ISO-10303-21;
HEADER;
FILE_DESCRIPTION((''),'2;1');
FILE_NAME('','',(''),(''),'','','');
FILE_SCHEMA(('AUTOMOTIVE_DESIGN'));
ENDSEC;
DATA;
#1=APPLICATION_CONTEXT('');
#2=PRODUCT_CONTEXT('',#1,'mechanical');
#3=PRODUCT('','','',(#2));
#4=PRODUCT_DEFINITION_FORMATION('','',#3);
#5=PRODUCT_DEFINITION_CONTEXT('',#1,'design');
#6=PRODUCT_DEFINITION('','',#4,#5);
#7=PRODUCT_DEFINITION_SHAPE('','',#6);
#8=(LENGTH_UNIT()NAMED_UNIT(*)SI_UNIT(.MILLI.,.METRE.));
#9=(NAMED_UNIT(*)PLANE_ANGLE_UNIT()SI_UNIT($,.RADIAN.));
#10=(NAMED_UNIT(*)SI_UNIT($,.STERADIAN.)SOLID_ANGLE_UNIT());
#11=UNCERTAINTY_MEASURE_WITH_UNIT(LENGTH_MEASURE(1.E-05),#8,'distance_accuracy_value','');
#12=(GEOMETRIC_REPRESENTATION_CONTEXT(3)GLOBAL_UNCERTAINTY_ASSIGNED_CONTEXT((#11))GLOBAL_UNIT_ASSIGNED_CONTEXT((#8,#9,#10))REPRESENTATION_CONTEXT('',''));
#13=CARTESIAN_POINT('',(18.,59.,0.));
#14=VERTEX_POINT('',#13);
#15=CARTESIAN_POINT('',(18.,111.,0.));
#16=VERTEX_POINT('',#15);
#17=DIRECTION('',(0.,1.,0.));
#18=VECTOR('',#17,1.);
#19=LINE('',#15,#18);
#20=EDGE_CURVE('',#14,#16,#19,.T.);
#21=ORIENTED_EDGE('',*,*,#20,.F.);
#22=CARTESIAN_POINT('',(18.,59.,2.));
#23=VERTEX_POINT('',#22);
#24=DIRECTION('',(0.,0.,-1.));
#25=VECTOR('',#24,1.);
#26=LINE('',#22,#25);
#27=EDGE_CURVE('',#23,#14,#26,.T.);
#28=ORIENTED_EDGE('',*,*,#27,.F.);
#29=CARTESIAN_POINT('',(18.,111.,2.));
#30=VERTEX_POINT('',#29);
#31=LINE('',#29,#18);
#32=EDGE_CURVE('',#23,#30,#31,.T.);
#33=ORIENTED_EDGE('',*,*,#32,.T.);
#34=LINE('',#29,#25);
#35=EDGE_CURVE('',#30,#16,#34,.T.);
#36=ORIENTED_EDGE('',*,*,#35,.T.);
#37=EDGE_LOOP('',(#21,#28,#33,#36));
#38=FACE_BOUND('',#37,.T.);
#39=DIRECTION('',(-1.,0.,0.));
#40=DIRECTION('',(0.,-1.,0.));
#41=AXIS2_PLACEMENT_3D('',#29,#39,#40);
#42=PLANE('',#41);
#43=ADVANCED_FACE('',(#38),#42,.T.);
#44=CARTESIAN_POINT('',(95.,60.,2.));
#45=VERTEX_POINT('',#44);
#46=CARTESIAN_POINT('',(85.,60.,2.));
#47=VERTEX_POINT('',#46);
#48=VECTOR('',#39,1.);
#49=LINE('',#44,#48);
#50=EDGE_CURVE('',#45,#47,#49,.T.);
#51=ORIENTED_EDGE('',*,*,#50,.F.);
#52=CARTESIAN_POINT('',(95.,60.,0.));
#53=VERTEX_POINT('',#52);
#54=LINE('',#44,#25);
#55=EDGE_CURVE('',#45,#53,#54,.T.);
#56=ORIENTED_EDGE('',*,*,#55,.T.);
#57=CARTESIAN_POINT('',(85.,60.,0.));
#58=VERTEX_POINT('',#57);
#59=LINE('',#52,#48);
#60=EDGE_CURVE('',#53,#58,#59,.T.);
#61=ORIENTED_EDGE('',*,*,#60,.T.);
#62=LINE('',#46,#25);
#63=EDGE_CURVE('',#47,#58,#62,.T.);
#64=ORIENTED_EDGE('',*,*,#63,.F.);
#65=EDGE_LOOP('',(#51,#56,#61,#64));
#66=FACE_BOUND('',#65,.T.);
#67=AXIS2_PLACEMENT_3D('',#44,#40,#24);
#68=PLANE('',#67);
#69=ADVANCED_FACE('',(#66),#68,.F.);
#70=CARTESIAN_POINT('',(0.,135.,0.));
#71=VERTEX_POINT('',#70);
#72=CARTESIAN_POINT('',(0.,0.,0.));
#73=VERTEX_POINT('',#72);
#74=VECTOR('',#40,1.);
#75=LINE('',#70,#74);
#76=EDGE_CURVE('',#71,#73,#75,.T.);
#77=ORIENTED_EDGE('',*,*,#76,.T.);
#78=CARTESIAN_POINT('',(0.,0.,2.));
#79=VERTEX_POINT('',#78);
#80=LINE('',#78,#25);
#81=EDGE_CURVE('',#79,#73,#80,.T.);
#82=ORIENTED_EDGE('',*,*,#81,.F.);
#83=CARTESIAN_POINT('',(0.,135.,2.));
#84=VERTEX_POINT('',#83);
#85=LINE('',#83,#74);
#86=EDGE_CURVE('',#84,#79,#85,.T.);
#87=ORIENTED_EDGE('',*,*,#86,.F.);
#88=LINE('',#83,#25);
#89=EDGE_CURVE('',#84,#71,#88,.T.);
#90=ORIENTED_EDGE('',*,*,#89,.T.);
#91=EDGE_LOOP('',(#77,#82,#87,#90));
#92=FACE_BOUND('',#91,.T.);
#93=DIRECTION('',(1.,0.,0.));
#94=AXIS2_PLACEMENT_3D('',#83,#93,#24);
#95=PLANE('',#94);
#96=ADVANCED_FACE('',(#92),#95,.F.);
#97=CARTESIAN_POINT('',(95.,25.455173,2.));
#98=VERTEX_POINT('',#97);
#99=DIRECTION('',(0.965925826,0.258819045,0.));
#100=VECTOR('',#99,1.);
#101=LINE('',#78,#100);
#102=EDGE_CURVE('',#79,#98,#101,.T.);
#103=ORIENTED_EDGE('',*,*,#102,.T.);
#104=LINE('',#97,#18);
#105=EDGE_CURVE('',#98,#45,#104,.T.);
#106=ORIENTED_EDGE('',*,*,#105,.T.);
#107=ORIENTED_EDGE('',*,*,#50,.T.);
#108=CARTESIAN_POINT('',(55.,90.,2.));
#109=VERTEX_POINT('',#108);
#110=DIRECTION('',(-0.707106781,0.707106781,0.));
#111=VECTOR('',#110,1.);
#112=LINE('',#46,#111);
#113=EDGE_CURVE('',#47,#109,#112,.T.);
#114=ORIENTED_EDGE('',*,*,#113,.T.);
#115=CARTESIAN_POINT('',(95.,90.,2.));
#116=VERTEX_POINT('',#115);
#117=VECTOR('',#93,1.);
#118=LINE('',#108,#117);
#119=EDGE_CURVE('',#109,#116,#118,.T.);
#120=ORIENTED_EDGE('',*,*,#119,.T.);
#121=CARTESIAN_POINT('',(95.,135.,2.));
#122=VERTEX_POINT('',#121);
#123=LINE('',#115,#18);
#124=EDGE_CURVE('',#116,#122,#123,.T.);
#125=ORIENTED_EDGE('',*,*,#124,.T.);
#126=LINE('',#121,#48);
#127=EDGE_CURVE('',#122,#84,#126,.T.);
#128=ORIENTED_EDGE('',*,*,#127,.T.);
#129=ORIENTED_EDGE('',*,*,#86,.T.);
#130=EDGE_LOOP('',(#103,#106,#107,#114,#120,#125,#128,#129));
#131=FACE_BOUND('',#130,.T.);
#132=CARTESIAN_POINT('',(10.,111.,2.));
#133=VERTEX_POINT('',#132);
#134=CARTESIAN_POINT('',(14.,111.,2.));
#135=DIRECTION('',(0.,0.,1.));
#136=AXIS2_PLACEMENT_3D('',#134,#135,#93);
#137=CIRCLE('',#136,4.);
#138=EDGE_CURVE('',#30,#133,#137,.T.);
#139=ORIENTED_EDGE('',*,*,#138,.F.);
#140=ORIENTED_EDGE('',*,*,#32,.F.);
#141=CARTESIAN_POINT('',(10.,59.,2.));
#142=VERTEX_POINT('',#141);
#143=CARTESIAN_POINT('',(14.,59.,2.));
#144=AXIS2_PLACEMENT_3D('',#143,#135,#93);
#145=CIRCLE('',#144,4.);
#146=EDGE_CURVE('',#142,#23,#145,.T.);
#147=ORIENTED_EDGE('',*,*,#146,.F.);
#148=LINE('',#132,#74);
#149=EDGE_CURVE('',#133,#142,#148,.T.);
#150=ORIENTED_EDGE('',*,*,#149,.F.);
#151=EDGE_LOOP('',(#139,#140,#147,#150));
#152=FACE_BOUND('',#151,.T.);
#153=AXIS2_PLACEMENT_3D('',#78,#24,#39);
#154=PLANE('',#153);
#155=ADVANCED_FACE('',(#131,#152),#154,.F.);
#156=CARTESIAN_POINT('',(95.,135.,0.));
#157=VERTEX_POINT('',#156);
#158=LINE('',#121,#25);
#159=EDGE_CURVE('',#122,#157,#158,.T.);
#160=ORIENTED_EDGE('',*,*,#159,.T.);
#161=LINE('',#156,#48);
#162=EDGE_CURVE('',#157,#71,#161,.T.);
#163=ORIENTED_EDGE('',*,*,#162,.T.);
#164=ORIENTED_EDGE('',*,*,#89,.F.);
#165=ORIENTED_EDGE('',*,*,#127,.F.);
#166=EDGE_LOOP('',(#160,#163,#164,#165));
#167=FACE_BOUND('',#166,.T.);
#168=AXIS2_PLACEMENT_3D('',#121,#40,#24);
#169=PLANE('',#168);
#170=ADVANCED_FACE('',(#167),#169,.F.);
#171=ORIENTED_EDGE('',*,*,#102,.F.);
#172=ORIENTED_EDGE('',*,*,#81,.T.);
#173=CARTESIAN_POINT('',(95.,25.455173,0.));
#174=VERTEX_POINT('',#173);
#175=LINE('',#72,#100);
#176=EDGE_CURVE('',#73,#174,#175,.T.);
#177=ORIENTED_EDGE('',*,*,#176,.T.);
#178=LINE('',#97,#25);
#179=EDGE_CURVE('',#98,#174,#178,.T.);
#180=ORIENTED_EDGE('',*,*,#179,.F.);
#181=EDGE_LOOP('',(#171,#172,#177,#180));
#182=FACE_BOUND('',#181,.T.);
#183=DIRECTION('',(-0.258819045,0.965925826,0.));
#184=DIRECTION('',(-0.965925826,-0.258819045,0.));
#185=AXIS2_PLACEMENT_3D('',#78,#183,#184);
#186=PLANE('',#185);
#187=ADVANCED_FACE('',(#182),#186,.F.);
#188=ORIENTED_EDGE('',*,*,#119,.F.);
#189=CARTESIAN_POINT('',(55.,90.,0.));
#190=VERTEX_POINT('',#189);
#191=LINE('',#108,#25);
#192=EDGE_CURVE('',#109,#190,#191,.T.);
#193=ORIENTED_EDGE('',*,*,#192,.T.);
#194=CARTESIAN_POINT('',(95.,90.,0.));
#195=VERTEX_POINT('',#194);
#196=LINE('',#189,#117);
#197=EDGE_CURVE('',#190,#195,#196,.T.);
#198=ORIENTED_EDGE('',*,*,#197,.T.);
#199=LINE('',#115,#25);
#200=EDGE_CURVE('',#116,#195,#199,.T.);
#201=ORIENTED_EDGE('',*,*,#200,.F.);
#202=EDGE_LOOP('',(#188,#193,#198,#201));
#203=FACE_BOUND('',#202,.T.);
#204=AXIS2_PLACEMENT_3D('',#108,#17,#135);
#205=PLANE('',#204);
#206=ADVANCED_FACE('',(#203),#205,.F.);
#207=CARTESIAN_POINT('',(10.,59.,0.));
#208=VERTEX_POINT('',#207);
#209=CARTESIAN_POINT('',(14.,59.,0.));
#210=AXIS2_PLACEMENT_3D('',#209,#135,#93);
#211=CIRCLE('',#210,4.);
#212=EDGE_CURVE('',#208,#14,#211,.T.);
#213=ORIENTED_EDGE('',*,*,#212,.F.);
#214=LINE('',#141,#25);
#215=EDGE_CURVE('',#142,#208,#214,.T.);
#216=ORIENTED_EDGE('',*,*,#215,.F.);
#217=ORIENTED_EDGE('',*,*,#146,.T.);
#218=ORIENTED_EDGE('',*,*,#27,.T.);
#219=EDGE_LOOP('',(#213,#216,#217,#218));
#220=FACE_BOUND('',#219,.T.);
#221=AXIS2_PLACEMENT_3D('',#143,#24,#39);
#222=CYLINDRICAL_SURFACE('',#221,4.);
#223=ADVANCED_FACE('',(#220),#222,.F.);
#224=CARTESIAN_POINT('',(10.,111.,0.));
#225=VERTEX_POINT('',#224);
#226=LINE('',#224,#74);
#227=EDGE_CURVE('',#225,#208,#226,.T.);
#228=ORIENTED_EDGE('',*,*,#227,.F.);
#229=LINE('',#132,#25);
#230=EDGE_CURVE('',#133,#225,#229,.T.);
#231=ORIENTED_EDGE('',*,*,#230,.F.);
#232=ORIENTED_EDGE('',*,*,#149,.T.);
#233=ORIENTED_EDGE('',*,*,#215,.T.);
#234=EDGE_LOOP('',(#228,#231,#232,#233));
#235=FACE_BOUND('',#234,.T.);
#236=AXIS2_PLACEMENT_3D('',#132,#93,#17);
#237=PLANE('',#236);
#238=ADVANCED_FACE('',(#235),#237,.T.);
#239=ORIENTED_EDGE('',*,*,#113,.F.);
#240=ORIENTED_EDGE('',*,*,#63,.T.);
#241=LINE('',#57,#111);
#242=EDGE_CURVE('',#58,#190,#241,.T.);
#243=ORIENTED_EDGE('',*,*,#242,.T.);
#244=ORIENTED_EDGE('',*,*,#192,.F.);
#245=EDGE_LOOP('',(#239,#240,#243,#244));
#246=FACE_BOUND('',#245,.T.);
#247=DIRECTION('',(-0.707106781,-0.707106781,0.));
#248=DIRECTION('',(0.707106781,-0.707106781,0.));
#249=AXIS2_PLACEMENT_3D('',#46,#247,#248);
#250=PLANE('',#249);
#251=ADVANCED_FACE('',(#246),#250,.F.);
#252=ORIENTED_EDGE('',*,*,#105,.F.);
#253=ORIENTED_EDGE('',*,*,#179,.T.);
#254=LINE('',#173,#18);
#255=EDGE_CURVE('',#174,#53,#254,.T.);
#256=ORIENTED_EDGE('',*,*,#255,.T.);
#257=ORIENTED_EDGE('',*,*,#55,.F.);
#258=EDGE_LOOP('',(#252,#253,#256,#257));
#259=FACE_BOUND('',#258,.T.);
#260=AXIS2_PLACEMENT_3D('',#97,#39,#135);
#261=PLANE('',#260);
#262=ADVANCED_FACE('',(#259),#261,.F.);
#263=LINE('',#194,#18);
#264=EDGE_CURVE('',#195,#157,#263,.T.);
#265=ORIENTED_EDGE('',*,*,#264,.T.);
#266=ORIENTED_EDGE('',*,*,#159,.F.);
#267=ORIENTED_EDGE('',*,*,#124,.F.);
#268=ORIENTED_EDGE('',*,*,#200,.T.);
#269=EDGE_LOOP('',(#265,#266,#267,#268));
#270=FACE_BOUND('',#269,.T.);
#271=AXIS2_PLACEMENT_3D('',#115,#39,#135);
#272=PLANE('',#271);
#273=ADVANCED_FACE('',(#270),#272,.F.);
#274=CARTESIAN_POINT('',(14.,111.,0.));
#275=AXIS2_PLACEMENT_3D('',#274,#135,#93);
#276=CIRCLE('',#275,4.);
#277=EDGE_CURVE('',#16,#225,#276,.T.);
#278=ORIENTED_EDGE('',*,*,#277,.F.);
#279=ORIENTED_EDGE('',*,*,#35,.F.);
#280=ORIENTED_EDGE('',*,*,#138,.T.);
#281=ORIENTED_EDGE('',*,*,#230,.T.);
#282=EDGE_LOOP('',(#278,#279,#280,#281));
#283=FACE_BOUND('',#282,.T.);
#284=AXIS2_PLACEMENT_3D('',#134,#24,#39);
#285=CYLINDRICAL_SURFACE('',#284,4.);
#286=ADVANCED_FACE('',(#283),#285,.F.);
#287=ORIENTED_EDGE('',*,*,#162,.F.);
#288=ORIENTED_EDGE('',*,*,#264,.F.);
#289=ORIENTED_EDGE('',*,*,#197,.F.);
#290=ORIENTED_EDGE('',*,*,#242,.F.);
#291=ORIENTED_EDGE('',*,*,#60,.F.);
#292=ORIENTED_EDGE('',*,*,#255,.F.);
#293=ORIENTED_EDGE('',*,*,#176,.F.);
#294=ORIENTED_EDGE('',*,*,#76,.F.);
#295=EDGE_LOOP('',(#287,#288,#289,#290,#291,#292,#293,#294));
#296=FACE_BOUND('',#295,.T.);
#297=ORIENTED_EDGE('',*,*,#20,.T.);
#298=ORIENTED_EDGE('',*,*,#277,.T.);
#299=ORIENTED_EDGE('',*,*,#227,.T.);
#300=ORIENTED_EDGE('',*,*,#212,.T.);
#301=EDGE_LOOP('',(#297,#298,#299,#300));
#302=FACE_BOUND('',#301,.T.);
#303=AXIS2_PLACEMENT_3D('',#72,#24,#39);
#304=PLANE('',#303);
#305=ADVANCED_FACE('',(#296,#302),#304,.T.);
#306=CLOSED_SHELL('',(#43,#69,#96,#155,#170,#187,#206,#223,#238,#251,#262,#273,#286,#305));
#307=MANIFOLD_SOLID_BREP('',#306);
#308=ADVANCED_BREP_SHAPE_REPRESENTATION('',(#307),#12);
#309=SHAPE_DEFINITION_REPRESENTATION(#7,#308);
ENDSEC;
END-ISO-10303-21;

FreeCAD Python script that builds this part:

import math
import FreeCAD as App
import Part
import Sketcher

V = App.Vector
Q = App.Units.Quantity

doc = App.newDocument("Part")
body = doc.addObject("PartDesign::Body", "Body")

sketch1 = doc.addObject("Sketcher::SketchObject", "Sketch")
body.addObject(sketch1)
sketch1.AttachmentSupport = (doc.XY_Plane, [""])
sketch1.MapMode = "FlatFace"
sketch1.addGeometry([
    Part.LineSegment(V(0, 0, 0), V(95, 25.5, 0)),
    Part.LineSegment(V(95, 25.5, 0), V(95, 60, 0)),
    Part.LineSegment(V(95, 60, 0), V(85, 60, 0)),
    Part.LineSegment(V(85, 60, 0), V(55, 90, 0)),
    Part.LineSegment(V(55, 90, 0), V(95, 90, 0)),
    Part.LineSegment(V(95, 90, 0), V(95, 135, 0)),
    Part.LineSegment(V(95, 135, 0), V(0, 135, 0)),
    Part.LineSegment(V(0, 135, 0), V(0, 0, 0)),
    Part.ArcOfCircle(Part.Circle(V(14, 111, 0), V(0, 0, 1), 4), math.radians(0), math.radians(180)),
    Part.LineSegment(V(18, 111, 0), V(18, 59, 0)),
    Part.ArcOfCircle(Part.Circle(V(14, 59, 0), V(0, 0, 1), 4), math.radians(180), math.radians(360)),
    Part.LineSegment(V(10, 59, 0), V(10, 111, 0)),
], False)
sketch1.addConstraint([
    Sketcher.Constraint("Coincident", 0, 2, 1, 1),
    Sketcher.Constraint("Coincident", 1, 2, 2, 1),
    Sketcher.Constraint("Coincident", 2, 2, 3, 1),
    Sketcher.Constraint("Coincident", 3, 2, 4, 1),
    Sketcher.Constraint("Coincident", 4, 2, 5, 1),
    Sketcher.Constraint("Coincident", 5, 2, 6, 1),
    Sketcher.Constraint("Coincident", 6, 2, 7, 1),
    Sketcher.Constraint("Coincident", 7, 2, 0, 1),
    Sketcher.Constraint("Tangent", 8, 1, 9, 1),
    Sketcher.Constraint("Tangent", 9, 2, 10, 2),
    Sketcher.Constraint("Tangent", 10, 1, 11, 1),
    Sketcher.Constraint("Tangent", 11, 2, 8, 2),
    Sketcher.Constraint("Vertical", 1),
    Sketcher.Constraint("Horizontal", 2),
    Sketcher.Constraint("Horizontal", 4),
    Sketcher.Constraint("Vertical", 5),
    Sketcher.Constraint("Horizontal", 6),
    Sketcher.Constraint("Vertical", 7),
    Sketcher.Constraint("Vertical", 9),
    Sketcher.Constraint("Vertical", 11),
    Sketcher.Constraint("Coincident", 7, 2, -1, 1),
    Sketcher.Constraint("Vertical", 1, 2, 4, 2),
    Sketcher.Constraint("Radius", 8, Q("4 mm")),
    Sketcher.Constraint("DistanceX", 2, 2, 2, 1, Q("10 mm")),
    Sketcher.Constraint("DistanceX", 4, 1, 4, 2, Q("40 mm")),
    Sketcher.Constraint("DistanceX", 6, 2, 6, 1, Q("95 mm")),
    Sketcher.Constraint("DistanceY", 5, 1, 5, 2, Q("45 mm")),
    Sketcher.Constraint("DistanceY", 7, 2, 7, 1, Q("135 mm")),
    Sketcher.Constraint("DistanceY", 9, 2, 9, 1, Q("52 mm")),
    Sketcher.Constraint("Angle", 0, Q("15 deg")),
    Sketcher.Constraint("Angle", 3, Q("135 deg")),
    Sketcher.Constraint("DistanceX", -1, 1, 8, 3, Q("14 mm")),
    Sketcher.Constraint("DistanceY", -1, 1, 8, 3, Q("111 mm")),
])
pad1 = doc.addObject("PartDesign::Pad", "Pad")
body.addObject(pad1)
pad1.Profile = sketch1
pad1.Length = 2

doc.recompute()
